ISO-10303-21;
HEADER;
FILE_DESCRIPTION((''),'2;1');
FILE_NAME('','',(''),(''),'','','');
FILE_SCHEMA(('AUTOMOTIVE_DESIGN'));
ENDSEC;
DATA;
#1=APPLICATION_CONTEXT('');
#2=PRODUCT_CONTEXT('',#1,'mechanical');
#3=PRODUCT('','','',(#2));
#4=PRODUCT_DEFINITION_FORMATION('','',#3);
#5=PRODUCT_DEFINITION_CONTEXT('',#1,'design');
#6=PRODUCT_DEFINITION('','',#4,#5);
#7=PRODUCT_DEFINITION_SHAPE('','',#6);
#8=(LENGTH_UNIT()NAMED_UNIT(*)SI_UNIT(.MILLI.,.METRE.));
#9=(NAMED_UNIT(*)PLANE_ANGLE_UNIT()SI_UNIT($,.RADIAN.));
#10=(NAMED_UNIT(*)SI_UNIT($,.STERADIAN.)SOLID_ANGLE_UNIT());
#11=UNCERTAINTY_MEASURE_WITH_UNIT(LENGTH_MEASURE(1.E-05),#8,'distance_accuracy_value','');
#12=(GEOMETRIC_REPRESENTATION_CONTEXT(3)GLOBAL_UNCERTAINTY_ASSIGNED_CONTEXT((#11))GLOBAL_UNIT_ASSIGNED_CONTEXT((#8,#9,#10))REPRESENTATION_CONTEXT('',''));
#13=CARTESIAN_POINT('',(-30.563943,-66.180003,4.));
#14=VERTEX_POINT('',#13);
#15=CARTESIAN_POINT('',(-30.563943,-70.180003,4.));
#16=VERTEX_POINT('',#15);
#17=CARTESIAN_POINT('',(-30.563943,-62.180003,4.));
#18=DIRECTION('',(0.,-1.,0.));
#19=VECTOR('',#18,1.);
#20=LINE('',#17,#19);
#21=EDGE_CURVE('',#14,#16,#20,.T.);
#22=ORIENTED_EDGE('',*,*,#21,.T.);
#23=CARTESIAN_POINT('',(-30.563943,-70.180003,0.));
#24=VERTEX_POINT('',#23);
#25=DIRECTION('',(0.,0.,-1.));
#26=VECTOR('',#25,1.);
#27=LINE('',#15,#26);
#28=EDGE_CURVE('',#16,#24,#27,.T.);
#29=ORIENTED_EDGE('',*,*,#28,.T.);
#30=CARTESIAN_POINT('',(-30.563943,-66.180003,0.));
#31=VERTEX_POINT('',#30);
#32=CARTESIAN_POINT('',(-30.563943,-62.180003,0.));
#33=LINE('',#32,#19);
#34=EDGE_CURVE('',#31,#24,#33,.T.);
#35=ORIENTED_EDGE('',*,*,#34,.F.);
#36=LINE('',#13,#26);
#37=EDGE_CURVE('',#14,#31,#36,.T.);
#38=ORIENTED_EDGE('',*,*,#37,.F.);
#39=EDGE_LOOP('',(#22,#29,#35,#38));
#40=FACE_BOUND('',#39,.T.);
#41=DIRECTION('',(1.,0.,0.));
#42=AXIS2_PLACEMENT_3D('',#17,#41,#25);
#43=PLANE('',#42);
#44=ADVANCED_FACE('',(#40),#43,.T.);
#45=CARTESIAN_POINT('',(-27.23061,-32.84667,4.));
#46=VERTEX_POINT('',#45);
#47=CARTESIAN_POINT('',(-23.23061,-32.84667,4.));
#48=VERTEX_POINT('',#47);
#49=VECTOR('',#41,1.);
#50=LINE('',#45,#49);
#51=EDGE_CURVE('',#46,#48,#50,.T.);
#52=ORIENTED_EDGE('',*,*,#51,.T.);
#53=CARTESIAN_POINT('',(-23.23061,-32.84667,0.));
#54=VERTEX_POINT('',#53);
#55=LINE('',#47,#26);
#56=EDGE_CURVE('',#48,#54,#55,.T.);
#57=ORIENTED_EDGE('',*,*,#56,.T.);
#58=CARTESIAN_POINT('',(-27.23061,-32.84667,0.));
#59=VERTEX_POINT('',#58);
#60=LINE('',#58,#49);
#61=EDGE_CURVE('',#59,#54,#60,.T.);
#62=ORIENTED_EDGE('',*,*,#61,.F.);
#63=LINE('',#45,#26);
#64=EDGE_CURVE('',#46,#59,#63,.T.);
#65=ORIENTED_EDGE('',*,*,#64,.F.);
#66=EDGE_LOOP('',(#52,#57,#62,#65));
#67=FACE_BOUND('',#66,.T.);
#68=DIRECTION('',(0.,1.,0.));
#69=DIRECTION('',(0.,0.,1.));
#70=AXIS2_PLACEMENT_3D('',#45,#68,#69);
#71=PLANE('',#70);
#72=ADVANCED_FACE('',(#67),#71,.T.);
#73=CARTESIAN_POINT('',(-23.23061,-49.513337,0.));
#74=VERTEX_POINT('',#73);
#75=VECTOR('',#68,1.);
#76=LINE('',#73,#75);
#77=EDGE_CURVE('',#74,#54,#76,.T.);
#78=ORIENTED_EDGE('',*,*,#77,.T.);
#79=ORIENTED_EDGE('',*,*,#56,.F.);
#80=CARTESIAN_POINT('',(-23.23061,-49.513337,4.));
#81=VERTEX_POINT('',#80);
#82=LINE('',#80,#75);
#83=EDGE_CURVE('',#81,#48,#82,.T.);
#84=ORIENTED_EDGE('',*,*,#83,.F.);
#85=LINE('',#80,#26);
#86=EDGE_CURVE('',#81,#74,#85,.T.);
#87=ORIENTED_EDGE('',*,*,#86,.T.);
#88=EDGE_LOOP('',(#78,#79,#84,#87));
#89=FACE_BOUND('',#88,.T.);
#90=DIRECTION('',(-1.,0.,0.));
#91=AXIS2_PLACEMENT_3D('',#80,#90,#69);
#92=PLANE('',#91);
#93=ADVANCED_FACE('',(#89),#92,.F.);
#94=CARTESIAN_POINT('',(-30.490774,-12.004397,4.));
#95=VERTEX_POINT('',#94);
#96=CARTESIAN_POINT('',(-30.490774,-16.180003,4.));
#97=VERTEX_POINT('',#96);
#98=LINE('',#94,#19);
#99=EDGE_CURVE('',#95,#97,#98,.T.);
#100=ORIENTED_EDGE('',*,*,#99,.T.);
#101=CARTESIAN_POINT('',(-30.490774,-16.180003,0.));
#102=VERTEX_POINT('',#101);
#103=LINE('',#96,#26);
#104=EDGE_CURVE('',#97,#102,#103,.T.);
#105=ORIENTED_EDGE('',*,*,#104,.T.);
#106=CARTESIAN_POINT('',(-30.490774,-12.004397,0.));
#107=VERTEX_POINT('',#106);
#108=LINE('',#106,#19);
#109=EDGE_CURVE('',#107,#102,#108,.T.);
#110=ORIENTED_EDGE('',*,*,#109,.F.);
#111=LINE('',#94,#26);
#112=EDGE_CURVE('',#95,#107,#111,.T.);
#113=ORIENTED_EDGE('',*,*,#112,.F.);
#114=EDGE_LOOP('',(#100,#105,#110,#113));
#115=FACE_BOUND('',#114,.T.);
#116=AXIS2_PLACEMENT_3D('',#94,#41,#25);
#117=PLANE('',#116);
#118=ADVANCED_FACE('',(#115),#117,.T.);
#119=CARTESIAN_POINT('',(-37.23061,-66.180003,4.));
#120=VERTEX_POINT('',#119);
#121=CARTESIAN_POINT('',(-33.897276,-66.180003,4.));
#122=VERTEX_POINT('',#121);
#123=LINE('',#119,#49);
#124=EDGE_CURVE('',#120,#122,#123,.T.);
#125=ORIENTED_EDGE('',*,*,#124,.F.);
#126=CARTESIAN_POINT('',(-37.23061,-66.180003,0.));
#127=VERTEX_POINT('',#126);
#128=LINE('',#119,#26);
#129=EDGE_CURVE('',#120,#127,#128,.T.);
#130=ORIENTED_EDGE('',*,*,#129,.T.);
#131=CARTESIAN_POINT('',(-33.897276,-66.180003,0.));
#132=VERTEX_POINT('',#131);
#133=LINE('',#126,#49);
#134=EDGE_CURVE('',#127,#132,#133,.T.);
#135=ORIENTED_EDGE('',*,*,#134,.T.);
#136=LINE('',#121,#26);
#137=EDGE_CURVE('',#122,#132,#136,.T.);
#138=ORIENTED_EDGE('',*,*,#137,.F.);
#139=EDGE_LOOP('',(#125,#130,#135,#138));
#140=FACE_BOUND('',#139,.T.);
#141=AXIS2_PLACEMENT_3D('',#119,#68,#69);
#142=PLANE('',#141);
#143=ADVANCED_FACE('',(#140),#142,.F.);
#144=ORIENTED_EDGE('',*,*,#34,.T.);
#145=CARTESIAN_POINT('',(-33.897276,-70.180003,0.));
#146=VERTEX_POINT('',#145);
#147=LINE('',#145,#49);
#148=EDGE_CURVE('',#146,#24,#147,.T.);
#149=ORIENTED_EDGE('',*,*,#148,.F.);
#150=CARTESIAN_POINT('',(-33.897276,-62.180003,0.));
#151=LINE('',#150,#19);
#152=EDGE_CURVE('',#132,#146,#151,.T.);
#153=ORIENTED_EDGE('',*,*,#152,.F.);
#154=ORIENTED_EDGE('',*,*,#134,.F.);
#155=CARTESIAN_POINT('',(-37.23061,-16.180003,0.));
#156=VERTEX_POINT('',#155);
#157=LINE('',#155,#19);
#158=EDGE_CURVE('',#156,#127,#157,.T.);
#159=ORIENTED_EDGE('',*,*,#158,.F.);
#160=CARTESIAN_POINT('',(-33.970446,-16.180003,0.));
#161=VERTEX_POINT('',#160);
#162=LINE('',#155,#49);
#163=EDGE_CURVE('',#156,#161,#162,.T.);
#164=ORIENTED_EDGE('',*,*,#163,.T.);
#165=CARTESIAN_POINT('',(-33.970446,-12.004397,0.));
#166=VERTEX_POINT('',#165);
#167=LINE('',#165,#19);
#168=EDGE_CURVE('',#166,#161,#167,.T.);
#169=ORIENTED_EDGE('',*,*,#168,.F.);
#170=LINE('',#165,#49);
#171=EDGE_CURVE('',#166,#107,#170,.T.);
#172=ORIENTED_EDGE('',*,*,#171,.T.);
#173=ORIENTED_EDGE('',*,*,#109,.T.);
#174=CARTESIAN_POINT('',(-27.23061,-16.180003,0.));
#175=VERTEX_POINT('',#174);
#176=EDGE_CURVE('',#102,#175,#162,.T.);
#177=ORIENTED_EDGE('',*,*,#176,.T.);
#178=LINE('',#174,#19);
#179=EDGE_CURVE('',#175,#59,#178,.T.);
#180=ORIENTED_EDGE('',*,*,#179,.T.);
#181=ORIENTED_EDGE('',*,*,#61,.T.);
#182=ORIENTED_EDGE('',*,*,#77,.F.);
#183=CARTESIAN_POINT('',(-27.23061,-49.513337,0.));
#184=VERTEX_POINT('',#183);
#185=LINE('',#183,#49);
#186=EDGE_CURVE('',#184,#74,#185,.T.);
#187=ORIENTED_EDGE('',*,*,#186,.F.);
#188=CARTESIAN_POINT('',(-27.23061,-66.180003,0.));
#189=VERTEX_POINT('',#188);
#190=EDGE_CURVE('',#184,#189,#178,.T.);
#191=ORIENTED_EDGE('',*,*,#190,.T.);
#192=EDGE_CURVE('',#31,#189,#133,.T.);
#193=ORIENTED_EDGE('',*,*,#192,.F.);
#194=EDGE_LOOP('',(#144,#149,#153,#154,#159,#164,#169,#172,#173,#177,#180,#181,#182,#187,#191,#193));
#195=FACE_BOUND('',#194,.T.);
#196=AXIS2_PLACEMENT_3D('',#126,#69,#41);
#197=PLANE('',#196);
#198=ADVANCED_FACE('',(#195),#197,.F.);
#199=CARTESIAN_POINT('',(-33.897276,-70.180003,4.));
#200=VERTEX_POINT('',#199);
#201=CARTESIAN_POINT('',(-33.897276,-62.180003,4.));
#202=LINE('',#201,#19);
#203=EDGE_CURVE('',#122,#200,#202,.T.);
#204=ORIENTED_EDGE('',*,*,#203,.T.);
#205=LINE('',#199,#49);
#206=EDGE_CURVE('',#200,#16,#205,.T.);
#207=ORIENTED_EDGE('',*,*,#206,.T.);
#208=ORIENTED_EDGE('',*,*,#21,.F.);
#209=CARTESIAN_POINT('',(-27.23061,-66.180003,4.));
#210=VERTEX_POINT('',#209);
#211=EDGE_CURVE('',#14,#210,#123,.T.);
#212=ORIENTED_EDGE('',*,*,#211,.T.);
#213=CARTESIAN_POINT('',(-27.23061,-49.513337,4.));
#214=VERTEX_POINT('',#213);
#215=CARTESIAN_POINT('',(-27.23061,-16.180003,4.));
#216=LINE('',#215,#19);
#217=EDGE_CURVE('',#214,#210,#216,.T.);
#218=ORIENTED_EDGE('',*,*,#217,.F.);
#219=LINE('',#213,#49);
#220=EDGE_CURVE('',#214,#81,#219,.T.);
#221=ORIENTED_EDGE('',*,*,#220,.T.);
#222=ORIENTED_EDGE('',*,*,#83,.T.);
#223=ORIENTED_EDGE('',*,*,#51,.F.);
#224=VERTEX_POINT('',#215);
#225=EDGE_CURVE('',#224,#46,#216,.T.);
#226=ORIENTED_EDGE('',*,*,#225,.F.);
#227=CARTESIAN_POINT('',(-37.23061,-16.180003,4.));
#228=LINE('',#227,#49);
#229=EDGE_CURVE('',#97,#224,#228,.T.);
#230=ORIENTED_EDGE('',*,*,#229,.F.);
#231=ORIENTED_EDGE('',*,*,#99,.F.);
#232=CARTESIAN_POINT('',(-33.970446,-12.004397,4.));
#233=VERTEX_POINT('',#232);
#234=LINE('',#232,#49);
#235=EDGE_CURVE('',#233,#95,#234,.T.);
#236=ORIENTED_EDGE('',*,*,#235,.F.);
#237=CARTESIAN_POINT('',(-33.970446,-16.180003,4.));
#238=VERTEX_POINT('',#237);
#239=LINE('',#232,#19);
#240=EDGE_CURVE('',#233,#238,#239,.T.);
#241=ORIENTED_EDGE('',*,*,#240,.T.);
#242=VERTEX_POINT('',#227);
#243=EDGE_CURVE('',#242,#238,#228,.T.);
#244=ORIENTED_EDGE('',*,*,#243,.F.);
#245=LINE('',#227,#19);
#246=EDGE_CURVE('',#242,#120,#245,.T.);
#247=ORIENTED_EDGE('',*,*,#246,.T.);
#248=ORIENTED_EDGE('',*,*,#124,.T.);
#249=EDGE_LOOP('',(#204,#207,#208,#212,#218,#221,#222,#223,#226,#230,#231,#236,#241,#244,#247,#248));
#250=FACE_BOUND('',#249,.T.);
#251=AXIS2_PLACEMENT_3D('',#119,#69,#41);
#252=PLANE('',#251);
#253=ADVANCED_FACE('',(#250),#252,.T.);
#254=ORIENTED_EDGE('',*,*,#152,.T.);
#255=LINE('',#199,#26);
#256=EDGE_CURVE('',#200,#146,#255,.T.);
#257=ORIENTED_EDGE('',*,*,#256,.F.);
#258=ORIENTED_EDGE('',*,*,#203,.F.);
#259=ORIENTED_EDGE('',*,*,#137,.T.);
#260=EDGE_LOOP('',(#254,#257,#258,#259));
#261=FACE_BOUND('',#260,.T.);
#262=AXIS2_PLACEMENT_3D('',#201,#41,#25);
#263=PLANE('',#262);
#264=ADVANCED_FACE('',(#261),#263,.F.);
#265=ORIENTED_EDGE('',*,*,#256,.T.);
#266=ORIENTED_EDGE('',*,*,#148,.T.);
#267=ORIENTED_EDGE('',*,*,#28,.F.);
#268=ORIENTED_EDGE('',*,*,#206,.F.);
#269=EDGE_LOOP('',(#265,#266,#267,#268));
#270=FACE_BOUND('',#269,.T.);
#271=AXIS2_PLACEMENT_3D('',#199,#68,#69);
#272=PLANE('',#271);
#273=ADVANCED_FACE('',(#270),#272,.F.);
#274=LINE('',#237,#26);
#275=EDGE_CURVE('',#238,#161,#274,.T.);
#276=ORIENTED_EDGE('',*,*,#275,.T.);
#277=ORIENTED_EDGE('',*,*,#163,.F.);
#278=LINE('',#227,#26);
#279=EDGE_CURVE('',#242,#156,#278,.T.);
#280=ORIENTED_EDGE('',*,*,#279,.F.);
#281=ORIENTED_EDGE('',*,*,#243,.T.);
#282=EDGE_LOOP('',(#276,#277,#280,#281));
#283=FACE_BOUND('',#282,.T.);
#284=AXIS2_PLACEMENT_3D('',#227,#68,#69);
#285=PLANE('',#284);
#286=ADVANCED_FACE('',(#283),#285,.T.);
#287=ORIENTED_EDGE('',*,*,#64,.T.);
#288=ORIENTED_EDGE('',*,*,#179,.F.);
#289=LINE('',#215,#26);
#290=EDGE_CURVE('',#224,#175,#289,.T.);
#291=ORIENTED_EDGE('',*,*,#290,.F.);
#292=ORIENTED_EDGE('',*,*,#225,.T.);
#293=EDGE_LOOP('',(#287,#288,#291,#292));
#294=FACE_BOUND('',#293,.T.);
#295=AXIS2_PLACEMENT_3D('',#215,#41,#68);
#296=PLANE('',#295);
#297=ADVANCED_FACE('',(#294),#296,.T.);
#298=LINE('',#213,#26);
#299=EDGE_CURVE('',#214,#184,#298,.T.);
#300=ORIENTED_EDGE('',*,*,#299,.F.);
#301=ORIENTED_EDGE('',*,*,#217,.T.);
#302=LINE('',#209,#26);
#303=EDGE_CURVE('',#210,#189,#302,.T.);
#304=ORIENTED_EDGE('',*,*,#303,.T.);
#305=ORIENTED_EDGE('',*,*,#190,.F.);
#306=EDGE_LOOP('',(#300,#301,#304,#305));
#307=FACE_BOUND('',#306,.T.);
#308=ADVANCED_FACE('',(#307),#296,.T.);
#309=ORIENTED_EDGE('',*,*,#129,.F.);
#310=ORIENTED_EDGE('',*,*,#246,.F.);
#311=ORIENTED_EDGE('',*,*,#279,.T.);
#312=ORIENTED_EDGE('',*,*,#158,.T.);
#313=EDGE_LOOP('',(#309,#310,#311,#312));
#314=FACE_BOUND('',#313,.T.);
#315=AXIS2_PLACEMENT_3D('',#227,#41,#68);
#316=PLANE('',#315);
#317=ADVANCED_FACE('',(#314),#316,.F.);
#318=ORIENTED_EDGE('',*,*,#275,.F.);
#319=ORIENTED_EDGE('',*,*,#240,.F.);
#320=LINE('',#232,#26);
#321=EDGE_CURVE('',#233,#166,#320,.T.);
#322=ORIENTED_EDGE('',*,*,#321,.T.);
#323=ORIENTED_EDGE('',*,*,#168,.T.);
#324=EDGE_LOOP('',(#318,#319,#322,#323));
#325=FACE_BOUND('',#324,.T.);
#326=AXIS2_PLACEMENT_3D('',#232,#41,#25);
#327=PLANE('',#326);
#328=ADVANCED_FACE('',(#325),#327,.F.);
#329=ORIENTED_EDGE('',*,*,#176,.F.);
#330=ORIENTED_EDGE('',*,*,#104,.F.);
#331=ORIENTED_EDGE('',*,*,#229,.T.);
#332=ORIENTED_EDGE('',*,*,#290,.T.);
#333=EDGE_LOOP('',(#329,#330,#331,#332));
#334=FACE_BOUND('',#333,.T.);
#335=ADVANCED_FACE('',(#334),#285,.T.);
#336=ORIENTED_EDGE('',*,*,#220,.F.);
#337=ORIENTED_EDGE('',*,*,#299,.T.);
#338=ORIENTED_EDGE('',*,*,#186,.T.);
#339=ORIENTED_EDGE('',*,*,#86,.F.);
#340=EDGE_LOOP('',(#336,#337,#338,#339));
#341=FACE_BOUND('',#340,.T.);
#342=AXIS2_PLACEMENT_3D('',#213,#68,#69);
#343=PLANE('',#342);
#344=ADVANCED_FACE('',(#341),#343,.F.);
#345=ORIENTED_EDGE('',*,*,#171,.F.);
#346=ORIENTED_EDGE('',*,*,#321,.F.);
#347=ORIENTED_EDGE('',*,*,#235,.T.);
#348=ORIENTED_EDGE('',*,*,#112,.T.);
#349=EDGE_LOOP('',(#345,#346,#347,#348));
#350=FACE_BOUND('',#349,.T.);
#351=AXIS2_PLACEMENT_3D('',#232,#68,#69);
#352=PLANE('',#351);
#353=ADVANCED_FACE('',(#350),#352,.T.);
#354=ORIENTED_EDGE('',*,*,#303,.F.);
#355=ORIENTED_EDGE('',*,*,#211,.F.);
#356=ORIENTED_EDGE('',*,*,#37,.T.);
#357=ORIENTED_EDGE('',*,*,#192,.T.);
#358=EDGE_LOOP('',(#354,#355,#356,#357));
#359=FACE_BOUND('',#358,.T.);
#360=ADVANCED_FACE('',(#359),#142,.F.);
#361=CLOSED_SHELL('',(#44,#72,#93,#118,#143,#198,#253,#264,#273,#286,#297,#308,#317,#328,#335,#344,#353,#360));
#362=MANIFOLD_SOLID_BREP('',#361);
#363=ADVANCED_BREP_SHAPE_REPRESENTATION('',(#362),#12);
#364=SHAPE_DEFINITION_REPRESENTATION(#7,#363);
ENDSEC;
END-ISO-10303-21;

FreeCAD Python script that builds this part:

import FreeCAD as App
import Part
import Sketcher

V = App.Vector
Q = App.Units.Quantity


def add_polygon(sketch, points):
    """Adds a closed chain of lines whose ends are joined by coincident constraints."""
    first, n = sketch.GeometryCount, len(points)
    for a, b in zip(points, points[1:] + points[:1]):
        sketch.addGeometry(Part.LineSegment(App.Vector(*a, 0), App.Vector(*b, 0)), False)
    for i in range(n):
        sketch.addConstraint(Sketcher.Constraint("Coincident", first + i, 2, first + (i + 1) % n, 1))

doc = App.newDocument("Part")
params = doc.addObject("Spreadsheet::Sheet", "Params")
for row, (alias, value) in enumerate([
    ("sketch1_width", "4 mm"),
    ("sketch1_height", "50 mm"),
    ("pad1_length", "4 mm"),
], start=1):
    params.set(f"A{row}", alias)
    params.set(f"B{row}", "=" + value)
    params.setAlias(f"B{row}", alias)

body = doc.addObject("PartDesign::Body", "Body")

# Sketch on XY plane
sketch1 = body.newObject("Sketcher::SketchObject", "Sketch")
sketch1.AttachmentSupport = (doc.getObject("XY_Plane"), [""])
sketch1.MapMode = "FlatFace"
add_polygon(sketch1, [(-37.23061, -16.180003), (-37.23061, -66.180003), (-33.897276, -66.180003), (-33.897276, -70.180003), (-30.563943, -70.180003), (-30.563943, -66.180003), (-27.23061, -66.180003), (-27.23061, -49.513337), (-23.23061, -49.513337), (-23.23061, -32.84667), (-27.23061, -32.84667), (-27.23061, -16.180003), (-30.490774, -16.180003), (-30.490774, -12.004397), (-33.970446, -12.004397), (-33.970446, -16.180003)])  # lines 0-15
sketch1.addConstraint(Sketcher.Constraint("Vertical", 0))
sketch1.addConstraint(Sketcher.Constraint("Horizontal", 1))
sketch1.addConstraint(Sketcher.Constraint("Vertical", 2))
sketch1.addConstraint(Sketcher.Constraint("Horizontal", 3))
sketch1.addConstraint(Sketcher.Constraint("Vertical", 4))
sketch1.addConstraint(Sketcher.Constraint("Horizontal", 5))
sketch1.addConstraint(Sketcher.Constraint("Vertical", 6))
sketch1.addConstraint(Sketcher.Constraint("Horizontal", 7))
sketch1.addConstraint(Sketcher.Constraint("Vertical", 8))
sketch1.addConstraint(Sketcher.Constraint("Horizontal", 9))
sketch1.addConstraint(Sketcher.Constraint("Vertical", 10))
sketch1.addConstraint(Sketcher.Constraint("Horizontal", 11))
sketch1.addConstraint(Sketcher.Constraint("Vertical", 12))
sketch1.addConstraint(Sketcher.Constraint("Horizontal", 13))
sketch1.addConstraint(Sketcher.Constraint("Vertical", 14))
sketch1.addConstraint(Sketcher.Constraint("Horizontal", 15))
sketch1.addConstraint(Sketcher.Constraint("Horizontal", 1, 2, 4, 2))
sketch1.addConstraint(Sketcher.Constraint("Horizontal", 11, 2, 14, 2))
sketch1.addConstraint(Sketcher.Constraint("Vertical", 6, 2, 9, 2))
sketch1.addConstraint(Sketcher.Constraint("Equal", 1, 3))
sketch1.addConstraint(Sketcher.Constraint("Equal", 3, 5))
sketch1.addConstraint(Sketcher.Constraint("Equal", 11, 15))
sketch1.addConstraint(Sketcher.Constraint("Equal", 9, 2))
sketch1.addConstraint(Sketcher.Constraint("Equal", 6, 8))
sketch1.addConstraint(Sketcher.Constraint("Equal", 8, 10))
sketch1.addConstraint(Sketcher.Constraint("DistanceX", 7, 1, 7, 2, Q("4 mm")))
sketch1.addConstraint(Sketcher.Constraint("DistanceY", 0, 2, 0, 1, Q("50 mm")))
sketch1.addConstraint(Sketcher.Constraint("DistanceX", 0, 2, 5, 2, Q("10 mm")))
sketch1.addConstraint(Sketcher.Constraint("DistanceX", 11, 2, 11, 1, Q("3.260164 mm")))
sketch1.addConstraint(Sketcher.Constraint("DistanceY", 12, 1, 12, 2, Q("4.175607 mm")))
sketch1.addConstraint(Sketcher.Constraint("DistanceX", 0, 2, -1, 1, Q("37.23061 mm")))
sketch1.addConstraint(Sketcher.Constraint("DistanceY", 8, 2, -1, 1, Q("32.84667 mm")))
sketch1.setExpression("Constraints[41]", "Params.sketch1_width")
sketch1.setExpression("Constraints[42]", "Params.sketch1_height")
pad1 = body.newObject("PartDesign::Pad", "Pad")
pad1.Profile = sketch1
pad1.setExpression("Length", "Params.pad1_length")

doc.recompute()
